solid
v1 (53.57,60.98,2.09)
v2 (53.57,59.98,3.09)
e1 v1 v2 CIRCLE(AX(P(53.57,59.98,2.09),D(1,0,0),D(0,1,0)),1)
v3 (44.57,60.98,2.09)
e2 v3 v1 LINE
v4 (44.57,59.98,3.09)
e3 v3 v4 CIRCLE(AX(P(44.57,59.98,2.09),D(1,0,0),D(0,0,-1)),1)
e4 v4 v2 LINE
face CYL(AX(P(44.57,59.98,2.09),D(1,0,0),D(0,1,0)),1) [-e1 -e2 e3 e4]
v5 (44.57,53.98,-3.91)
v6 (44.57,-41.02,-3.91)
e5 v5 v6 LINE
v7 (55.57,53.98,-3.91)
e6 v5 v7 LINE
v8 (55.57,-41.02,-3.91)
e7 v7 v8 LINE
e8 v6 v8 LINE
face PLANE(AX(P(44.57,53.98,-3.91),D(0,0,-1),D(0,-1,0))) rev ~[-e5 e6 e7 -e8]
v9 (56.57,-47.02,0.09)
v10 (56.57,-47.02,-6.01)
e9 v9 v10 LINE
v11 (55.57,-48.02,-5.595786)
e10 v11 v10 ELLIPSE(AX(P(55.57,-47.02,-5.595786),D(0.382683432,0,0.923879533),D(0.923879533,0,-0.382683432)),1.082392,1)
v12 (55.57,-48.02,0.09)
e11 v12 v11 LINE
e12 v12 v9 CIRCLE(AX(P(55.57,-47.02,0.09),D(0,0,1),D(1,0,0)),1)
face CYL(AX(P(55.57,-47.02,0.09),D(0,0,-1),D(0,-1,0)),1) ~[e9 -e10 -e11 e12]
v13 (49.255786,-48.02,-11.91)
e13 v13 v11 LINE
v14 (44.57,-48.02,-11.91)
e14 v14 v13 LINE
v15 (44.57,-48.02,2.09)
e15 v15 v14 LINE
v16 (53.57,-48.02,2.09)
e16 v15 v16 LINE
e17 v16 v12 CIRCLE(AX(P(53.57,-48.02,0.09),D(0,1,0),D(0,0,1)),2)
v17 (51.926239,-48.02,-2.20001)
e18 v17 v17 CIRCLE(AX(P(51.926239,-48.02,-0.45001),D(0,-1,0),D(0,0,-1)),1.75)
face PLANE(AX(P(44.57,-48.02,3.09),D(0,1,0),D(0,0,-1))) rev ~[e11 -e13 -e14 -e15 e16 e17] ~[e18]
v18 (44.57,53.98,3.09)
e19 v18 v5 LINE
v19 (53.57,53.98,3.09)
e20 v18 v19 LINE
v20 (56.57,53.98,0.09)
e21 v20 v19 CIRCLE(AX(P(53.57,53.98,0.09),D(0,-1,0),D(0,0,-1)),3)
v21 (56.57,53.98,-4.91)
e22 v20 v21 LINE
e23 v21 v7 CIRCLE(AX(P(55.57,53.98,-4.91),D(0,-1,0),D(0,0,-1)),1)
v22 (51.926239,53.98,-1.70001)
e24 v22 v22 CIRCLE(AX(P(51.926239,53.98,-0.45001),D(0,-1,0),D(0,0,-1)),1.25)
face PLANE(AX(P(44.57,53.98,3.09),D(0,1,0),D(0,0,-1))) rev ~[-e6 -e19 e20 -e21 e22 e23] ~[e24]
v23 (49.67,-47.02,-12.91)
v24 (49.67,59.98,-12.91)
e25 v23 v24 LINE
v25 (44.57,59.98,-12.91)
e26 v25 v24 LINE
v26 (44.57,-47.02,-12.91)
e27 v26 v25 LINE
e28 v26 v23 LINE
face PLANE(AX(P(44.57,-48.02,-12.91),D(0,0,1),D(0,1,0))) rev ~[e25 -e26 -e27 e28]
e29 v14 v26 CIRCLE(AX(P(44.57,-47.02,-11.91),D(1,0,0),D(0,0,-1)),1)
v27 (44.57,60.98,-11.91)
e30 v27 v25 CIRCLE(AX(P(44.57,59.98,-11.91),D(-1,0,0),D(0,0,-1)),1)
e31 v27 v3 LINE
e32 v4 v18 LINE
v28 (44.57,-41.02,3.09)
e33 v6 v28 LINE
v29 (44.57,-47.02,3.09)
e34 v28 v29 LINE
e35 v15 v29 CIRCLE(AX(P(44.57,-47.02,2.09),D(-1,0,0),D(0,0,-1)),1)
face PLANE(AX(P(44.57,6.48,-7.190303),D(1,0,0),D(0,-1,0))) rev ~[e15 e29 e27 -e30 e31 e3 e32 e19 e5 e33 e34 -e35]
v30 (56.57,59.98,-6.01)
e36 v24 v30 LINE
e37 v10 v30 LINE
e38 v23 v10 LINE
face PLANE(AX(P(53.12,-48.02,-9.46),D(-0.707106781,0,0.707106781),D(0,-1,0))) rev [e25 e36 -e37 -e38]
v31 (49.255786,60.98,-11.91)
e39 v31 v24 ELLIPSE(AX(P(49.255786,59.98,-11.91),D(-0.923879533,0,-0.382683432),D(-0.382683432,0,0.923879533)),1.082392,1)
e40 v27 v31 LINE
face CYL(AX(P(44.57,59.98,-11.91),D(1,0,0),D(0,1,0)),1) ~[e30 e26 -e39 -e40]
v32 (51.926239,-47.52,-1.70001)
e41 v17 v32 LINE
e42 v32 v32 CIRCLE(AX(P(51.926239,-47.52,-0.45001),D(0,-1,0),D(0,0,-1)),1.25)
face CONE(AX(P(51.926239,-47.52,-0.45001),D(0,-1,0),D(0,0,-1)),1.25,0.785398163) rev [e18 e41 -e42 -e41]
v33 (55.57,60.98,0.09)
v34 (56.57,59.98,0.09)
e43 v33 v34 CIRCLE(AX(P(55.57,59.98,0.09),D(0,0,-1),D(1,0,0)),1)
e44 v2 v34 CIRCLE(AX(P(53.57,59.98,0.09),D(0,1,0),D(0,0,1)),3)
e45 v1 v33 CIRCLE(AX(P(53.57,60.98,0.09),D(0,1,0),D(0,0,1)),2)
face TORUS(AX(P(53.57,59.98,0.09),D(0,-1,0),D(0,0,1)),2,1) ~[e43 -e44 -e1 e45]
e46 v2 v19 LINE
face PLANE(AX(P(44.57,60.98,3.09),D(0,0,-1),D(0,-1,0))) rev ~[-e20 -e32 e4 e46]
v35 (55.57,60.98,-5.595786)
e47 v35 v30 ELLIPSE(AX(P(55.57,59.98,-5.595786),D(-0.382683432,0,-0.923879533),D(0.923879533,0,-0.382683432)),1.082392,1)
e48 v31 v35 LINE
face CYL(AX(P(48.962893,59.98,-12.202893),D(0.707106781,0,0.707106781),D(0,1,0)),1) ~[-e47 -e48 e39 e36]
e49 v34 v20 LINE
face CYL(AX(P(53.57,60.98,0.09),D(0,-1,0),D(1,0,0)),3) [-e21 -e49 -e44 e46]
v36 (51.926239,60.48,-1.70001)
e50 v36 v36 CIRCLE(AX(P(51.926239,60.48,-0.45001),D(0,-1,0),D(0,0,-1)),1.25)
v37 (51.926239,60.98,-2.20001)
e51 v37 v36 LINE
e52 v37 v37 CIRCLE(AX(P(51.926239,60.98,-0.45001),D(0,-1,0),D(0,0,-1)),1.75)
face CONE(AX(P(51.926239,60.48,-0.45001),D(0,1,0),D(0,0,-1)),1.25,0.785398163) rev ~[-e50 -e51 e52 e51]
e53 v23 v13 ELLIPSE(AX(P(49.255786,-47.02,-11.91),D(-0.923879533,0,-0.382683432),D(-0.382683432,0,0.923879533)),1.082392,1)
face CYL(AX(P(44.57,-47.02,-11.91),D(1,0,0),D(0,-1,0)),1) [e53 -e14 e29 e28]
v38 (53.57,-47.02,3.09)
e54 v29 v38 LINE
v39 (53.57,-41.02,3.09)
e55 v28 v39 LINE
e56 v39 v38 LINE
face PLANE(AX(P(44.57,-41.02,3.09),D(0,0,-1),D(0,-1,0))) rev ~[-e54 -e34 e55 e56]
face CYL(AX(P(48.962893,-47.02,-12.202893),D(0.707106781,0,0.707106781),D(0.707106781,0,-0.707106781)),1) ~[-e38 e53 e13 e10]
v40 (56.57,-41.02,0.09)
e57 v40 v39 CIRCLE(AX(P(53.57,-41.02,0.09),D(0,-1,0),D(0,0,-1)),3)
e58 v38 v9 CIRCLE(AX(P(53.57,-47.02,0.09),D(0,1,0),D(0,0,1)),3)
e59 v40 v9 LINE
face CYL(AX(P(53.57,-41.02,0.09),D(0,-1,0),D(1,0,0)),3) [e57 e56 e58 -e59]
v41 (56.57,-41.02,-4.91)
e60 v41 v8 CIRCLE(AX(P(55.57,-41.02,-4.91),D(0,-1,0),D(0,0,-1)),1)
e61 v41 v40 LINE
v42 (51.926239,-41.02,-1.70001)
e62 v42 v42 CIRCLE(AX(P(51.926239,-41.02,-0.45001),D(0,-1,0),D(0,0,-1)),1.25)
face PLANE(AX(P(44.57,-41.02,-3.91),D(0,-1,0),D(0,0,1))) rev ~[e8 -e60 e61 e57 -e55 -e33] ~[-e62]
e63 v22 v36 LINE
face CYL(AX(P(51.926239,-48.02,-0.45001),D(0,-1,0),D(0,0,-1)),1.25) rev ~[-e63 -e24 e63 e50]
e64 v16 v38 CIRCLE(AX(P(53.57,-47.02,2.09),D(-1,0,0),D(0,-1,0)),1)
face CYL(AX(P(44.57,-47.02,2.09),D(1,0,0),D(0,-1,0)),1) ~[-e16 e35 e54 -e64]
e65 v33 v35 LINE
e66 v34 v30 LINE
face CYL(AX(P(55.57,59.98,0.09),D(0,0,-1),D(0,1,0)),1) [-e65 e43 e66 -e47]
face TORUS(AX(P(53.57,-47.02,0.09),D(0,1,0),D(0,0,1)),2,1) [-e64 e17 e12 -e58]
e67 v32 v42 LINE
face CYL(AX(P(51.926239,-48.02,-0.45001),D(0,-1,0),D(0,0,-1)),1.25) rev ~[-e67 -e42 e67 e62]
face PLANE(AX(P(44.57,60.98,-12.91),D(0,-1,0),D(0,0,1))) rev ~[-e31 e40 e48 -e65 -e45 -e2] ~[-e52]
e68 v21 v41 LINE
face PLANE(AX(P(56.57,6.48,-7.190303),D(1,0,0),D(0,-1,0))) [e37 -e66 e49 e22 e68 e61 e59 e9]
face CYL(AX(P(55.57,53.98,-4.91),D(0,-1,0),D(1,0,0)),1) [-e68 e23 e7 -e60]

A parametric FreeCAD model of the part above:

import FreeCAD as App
import Part
import Sketcher

V = App.Vector


def edges_at(feature, points):
    """Names of the edges that pass closest to the given points."""
    edges = feature.Shape.Edges
    near = lambda p: min(range(len(edges)), key=lambda i: edges[i].distToShape(Part.Vertex(*p))[0])
    return sorted({f"Edge{near(p) + 1}" for p in points})

doc = App.newDocument("Part")
body = doc.addObject("PartDesign::Body", "Body")

sketch1 = body.newObject("Sketcher::SketchObject", "Sketch")
sketch1.AttachmentSupport = (doc.getObject("YZ_Plane"), [""])
sketch1.MapMode = "FlatFace"
sketch1.AttachmentOffset = App.Placement(V(0, 0, 37), App.Rotation())
sketch1.addGeometry([
    Part.LineSegment(V(-48, 6, 0), V(-41, 6, 0)),
    Part.LineSegment(V(-41, 6, 0), V(-41, 13, 0)),
    Part.LineSegment(V(-41, 13, 0), V(54, 13, 0)),
    Part.LineSegment(V(54, 13, 0), V(54, 6, 0)),
    Part.LineSegment(V(54, 6, 0), V(61, 6, 0)),
    Part.LineSegment(V(61, 6, 0), V(61, 22, 0)),
    Part.LineSegment(V(61, 22, 0), V(-48, 22, 0)),
    Part.LineSegment(V(-48, 22, 0), V(-48, 6, 0)),
], False)
sketch1.addConstraint([
    Sketcher.Constraint("Coincident", 0, 2, 1, 1),
    Sketcher.Constraint("Coincident", 1, 2, 2, 1),
    Sketcher.Constraint("Coincident", 2, 2, 3, 1),
    Sketcher.Constraint("Coincident", 3, 2, 4, 1),
    Sketcher.Constraint("Coincident", 4, 2, 5, 1),
    Sketcher.Constraint("Coincident", 5, 2, 6, 1),
    Sketcher.Constraint("Coincident", 6, 2, 7, 1),
    Sketcher.Constraint("Coincident", 7, 2, 0, 1),
    Sketcher.Constraint("Horizontal", 0),
    Sketcher.Constraint("Vertical", 1),
    Sketcher.Constraint("Horizontal", 2),
    Sketcher.Constraint("Vertical", 3),
    Sketcher.Constraint("Horizontal", 4),
    Sketcher.Constraint("Vertical", 5),
    Sketcher.Constraint("Horizontal", 6),
    Sketcher.Constraint("Vertical", 7),
    Sketcher.Constraint("Horizontal", 0, 2, 3, 2),
    Sketcher.Constraint("Equal", 0, 4),
    Sketcher.Constraint("Equal", 4, 1),
    Sketcher.Constraint("DistanceX", 0, 1, 0, 2, 7.0),
    Sketcher.Constraint("DistanceX", 2, 1, 2, 2, 95.0),
    Sketcher.Constraint("DistanceY", 5, 1, 5, 2, 16.0),
    Sketcher.Constraint("DistanceX", 0, 2, -1, 1, 41.0),
    Sketcher.Constraint("DistanceY", -1, 1, 0, 2, 6.0),
])
pad1 = body.newObject("PartDesign::Pad", "Pad")
pad1.Profile = sketch1
pad1.Length = 12
doc.recompute()

chamfer = body.newObject("PartDesign::Chamfer", "Chamfer")
chamfer.Base = (pad1, edges_at(pad1, [(49, 6.5, 22)]))
chamfer.Size = 6.9
doc.recompute()

fillet = body.newObject("PartDesign::Fillet", "Fillet")
fillet.Base = (chamfer, edges_at(chamfer, [(49, 6.5, 13)]))
fillet.Radius = 1
doc.recompute()

fillet2 = body.newObject("PartDesign::Fillet", "Fillet001")
fillet2.Base = (fillet, edges_at(fillet, [(49, 57.5, 6), (49, -44.5, 6)]))
fillet2.Radius = 3
doc.recompute()

fillet3 = body.newObject("PartDesign::Fillet", "Fillet002")
fillet3.Base = (fillet2, edges_at(fillet2, [
    (41.5, 61, 6),
    (48.121, 61, 6.879),
    (49, 61, 12.05),
    (45.55, 61, 18.55),
    (39.55, 61, 22),
]))
fillet3.Radius = 1

sketch2 = body.newObject("Sketcher::SketchObject", "Sketch001")
sketch2.AttachmentSupport = (doc.getObject("XZ_Plane"), [""])
sketch2.MapMode = "FlatFace"
sketch2.AttachmentOffset = App.Placement(V(0, 0, -61), App.Rotation())
sketch2.addGeometry(Part.Circle(V(44.4, 9.5, 0), V(0, 0, 1), 1.2), False)
sketch2.addConstraint([
    Sketcher.Constraint("Diameter", 0, 2.5),
    Sketcher.Constraint("DistanceX", -1, 1, 0, 3, 44.356239),
    Sketcher.Constraint("DistanceY", -1, 1, 0, 3, 9.54001),
])
pocket1 = body.newObject("PartDesign::Pocket", "Pocket")
pocket1.Profile = sketch2
pocket1.Type = "ThroughAll"
pocket1.Reversed = True
doc.recompute()

chamfer2 = body.newObject("PartDesign::Chamfer", "Chamfer001")
chamfer2.Base = (pocket1, edges_at(pocket1, [(44.356, 61, 8.29), (44.356, -48, 8.29)]))
chamfer2.Size = 0.5
doc.recompute()

fillet4 = body.newObject("PartDesign::Fillet", "Fillet003")
fillet4.Base = (chamfer2, edges_at(chamfer2, [
    (41.5, -48, 6),
    (48.121, -48, 6.879),
    (49, -48, 12.05),
    (45.55, -48, 18.55),
    (39.55, -48, 22),
]))
fillet4.Radius = 1
body2 = doc.addObject("PartDesign::Body", "Body001")
doc.recompute()

body.Placement = App.Placement(V(7.57, 12.98, 9.09), App.Rotation(V(1, 0, 0), 180))
boolean = body2.newObject("PartDesign::Boolean", "Boolean")
boolean.Type = "Fuse"
boolean.addObjects([body])

doc.recompute()
